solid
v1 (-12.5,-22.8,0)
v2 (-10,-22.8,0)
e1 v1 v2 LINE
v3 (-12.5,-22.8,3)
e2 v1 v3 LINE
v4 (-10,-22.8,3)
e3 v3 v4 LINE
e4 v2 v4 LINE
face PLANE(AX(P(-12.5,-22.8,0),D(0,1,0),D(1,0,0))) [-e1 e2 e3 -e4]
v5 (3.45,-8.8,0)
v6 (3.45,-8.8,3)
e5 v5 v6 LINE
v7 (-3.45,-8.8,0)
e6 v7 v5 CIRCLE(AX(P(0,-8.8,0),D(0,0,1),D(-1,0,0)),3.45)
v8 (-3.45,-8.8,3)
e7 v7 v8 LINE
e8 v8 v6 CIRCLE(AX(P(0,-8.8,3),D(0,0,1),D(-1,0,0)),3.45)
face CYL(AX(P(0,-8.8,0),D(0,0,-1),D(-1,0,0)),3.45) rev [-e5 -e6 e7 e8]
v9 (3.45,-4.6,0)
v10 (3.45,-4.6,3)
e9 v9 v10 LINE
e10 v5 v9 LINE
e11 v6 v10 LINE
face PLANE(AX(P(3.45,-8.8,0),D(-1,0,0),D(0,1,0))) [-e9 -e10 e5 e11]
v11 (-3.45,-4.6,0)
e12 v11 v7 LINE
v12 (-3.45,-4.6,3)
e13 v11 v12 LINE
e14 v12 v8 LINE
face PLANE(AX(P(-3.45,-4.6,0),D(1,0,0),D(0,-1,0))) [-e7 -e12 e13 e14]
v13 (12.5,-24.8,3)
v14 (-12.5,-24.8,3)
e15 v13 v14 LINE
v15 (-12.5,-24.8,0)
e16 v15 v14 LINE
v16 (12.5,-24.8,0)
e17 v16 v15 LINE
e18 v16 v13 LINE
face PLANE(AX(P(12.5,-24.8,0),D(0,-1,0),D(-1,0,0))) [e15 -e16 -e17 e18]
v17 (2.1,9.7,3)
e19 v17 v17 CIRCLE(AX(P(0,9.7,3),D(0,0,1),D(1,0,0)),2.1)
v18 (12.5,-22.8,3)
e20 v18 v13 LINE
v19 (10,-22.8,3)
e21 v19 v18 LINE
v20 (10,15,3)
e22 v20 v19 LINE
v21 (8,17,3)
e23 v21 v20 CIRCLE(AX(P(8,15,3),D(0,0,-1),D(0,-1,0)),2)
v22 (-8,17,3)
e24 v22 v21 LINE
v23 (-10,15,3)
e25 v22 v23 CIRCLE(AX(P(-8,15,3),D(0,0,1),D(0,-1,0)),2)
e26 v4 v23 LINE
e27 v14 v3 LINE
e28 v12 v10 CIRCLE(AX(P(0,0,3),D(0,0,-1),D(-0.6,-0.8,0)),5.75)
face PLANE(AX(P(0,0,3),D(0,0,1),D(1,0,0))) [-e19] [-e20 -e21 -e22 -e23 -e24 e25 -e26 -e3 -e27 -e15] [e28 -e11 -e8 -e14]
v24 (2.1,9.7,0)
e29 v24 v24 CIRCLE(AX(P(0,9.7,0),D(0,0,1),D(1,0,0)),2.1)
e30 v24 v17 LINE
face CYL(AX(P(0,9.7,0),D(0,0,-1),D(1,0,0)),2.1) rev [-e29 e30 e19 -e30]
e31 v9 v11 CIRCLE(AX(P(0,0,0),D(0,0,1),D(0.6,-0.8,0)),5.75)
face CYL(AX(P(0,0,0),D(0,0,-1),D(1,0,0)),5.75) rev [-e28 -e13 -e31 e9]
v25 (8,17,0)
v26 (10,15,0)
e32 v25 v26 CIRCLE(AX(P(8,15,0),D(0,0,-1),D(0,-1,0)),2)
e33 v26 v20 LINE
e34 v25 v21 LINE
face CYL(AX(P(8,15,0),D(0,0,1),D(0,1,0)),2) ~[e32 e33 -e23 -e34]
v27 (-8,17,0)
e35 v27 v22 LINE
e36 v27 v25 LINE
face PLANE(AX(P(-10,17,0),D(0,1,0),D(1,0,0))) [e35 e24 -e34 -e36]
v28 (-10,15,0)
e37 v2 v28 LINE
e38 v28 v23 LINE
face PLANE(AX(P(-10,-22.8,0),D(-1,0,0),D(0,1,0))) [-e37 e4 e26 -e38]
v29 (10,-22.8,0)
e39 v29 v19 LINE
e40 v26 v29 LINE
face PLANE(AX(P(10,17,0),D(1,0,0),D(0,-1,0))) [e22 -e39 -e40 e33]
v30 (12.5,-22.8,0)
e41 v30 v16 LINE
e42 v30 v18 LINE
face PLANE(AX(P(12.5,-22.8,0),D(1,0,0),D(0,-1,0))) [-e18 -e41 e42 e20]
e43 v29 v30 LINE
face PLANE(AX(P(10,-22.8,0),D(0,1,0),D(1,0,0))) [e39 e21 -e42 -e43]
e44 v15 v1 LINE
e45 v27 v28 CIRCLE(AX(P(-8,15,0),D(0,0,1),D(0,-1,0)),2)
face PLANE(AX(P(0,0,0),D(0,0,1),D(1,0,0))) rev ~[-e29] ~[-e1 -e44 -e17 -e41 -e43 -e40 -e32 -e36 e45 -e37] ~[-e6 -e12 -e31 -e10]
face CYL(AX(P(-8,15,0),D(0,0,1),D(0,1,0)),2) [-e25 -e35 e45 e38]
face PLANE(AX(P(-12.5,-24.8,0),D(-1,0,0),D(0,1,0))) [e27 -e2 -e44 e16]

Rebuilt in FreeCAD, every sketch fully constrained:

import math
import FreeCAD as App
import Part
import Sketcher
from FreeCAD import Vector


def edges_at(feature, points):
    """Names of the edges that pass closest to the given points."""
    edges = feature.Shape.Edges
    near = lambda p: min(range(len(edges)), key=lambda i: edges[i].distToShape(Part.Vertex(*p))[0])
    return sorted({f"Edge{near(p) + 1}" for p in points})

doc = App.newDocument("Part")
body = doc.addObject("PartDesign::Body", "Body")

# Sketch on XY plane
sketch1 = body.newObject("Sketcher::SketchObject", "Sketch")
sketch1.AttachmentSupport = (doc.getObject("XY_Plane"), [""])
sketch1.MapMode = "FlatFace"
sketch1.addGeometry([
    Part.LineSegment(Vector(10, 17, 0), Vector(-10, 17, 0)),  # 0
    Part.LineSegment(Vector(-10, 17, 0), Vector(-10, -22.8, 0)),  # 1
    Part.LineSegment(Vector(-10, -22.8, 0), Vector(-12.5, -22.8, 0)),  # 2
    Part.LineSegment(Vector(-12.5, -22.8, 0), Vector(-12.5, -24.8, 0)),  # 3
    Part.LineSegment(Vector(-12.5, -24.8, 0), Vector(12.5, -24.8, 0)),  # 4
    Part.LineSegment(Vector(12.5, -24.8, 0), Vector(12.5, -22.8, 0)),  # 5
    Part.LineSegment(Vector(12.5, -22.8, 0), Vector(10, -22.8, 0)),  # 6
    Part.LineSegment(Vector(10, -22.8, 0), Vector(10, 17, 0)),  # 7
    Part.ArcOfCircle(Part.Circle(Vector(0, 0, 0), Vector(0, 0, 1), 5.8), math.radians(-53), math.radians(233)),  # 8
    Part.LineSegment(Vector(3.5, -4.6, 0), Vector(3.5, -8.8, 0)),  # 9
    Part.ArcOfCircle(Part.Circle(Vector(0, -8.8, 0), Vector(0, 0, 1), 3.5), math.radians(180), math.radians(360)),  # 10
    Part.LineSegment(Vector(-3.5, -8.8, 0), Vector(-3.5, -4.6, 0)),  # 11
    Part.Circle(Vector(0, 9.7, 0), Vector(0, 0, 1), 2.1),  # 12
], False)
sketch1.addConstraint([
    Sketcher.Constraint("Coincident", 0, 2, 1, 1),
    Sketcher.Constraint("Coincident", 1, 2, 2, 1),
    Sketcher.Constraint("Coincident", 2, 2, 3, 1),
    Sketcher.Constraint("Coincident", 3, 2, 4, 1),
    Sketcher.Constraint("Coincident", 4, 2, 5, 1),
    Sketcher.Constraint("Coincident", 5, 2, 6, 1),
    Sketcher.Constraint("Coincident", 6, 2, 7, 1),
    Sketcher.Constraint("Coincident", 7, 2, 0, 1),
    Sketcher.Constraint("Coincident", 8, 1, 9, 1),
    Sketcher.Constraint("Tangent", 9, 2, 10, 2),
    Sketcher.Constraint("Tangent", 10, 1, 11, 1),
    Sketcher.Constraint("Coincident", 11, 2, 8, 2),
    Sketcher.Constraint("Horizontal", 0),
    Sketcher.Constraint("Vertical", 1),
    Sketcher.Constraint("Horizontal", 2),
    Sketcher.Constraint("Vertical", 3),
    Sketcher.Constraint("Horizontal", 4),
    Sketcher.Constraint("Vertical", 5),
    Sketcher.Constraint("Horizontal", 6),
    Sketcher.Constraint("Vertical", 7),
    Sketcher.Constraint("Vertical", 9),
    Sketcher.Constraint("Vertical", 11),
    Sketcher.Constraint("Coincident", 8, 3, -1, 1),
    Sketcher.Constraint("Symmetric", 2, 2, 5, 2, -2),
    Sketcher.Constraint("PointOnObject", 10, 3, -2),
    Sketcher.Constraint("PointOnObject", 12, 3, -2),
    Sketcher.Constraint("Equal", 2, 6),
    Sketcher.Constraint("Diameter", 12, 4.2),
    Sketcher.Constraint("DistanceX", 0, 2, 0, 1, 20.0),
    Sketcher.Constraint("DistanceX", 4, 1, 4, 2, 25.0),
    Sketcher.Constraint("DistanceY", 3, 2, 3, 1, 2.0),
    Sketcher.Constraint("Radius", 8, 5.75),
    Sketcher.Constraint("Radius", 10, 3.45),
    Sketcher.Constraint("DistanceY", 9, 2, 9, 1, 4.2),
    Sketcher.Constraint("DistanceY", -1, 1, 0, 2, 17.0),
    Sketcher.Constraint("DistanceY", 1, 2, 10, 3, 14.0),
    Sketcher.Constraint("DistanceY", 10, 3, 12, 3, 18.5),
])
pad1 = body.newObject("PartDesign::Pad", "Pad")
pad1.Profile = sketch1
pad1.Length = 3
doc.recompute()

fillet = body.newObject("PartDesign::Fillet", "Fillet")
fillet.Base = (pad1, edges_at(pad1, [(10, 17, 1.5), (-10, 17, 1.5)]))
fillet.Radius = 2

doc.recompute()
